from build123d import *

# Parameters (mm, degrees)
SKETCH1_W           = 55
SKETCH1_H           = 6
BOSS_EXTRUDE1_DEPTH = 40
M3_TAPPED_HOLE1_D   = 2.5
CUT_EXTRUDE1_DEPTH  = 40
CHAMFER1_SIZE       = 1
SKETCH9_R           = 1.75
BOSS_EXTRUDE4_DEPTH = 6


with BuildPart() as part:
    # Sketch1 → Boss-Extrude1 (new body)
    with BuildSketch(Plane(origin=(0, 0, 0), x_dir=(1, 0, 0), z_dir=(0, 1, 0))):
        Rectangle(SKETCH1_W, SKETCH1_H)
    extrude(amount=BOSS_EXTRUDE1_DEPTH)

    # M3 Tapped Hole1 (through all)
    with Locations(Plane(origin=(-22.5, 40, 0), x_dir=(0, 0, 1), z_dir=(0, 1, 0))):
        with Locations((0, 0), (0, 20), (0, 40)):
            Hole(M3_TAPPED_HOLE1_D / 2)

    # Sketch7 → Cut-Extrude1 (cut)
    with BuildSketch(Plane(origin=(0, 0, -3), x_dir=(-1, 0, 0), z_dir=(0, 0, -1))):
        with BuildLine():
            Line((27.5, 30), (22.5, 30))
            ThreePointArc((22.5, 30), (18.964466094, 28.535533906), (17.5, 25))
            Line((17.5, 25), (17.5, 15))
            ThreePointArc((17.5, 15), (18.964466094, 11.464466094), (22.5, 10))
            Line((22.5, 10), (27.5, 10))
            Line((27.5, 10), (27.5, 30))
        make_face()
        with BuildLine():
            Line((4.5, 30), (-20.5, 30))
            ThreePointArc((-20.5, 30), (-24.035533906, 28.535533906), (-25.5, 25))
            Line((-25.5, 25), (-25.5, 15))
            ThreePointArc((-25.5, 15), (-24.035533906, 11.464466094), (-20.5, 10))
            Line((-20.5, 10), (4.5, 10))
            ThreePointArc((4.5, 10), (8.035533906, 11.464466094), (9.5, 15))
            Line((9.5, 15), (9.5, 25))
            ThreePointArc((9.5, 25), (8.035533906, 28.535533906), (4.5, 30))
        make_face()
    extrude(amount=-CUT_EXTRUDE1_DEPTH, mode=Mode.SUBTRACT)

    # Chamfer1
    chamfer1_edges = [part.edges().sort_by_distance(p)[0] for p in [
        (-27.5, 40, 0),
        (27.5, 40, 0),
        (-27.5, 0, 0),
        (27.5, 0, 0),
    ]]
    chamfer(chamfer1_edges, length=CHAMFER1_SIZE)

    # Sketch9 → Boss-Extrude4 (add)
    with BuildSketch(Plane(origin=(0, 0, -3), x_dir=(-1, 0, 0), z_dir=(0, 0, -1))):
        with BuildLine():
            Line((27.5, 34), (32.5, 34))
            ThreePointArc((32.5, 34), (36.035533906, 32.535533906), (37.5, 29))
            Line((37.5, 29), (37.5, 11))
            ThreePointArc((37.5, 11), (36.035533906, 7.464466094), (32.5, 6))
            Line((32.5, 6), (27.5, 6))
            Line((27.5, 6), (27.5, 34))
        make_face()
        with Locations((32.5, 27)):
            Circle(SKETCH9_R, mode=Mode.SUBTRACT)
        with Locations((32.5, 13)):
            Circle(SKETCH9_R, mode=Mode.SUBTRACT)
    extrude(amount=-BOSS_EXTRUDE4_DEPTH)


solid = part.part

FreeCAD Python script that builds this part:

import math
import FreeCAD as App
import Part
import Sketcher
from FreeCAD import Vector


def edges_at(feature, points):
    """Names of the edges that pass closest to the given points."""
    edges = feature.Shape.Edges
    near = lambda p: min(range(len(edges)), key=lambda i: edges[i].distToShape(Part.Vertex(*p))[0])
    return sorted({f"Edge{near(p) + 1}" for p in points})

doc = App.newDocument("Part")
body = doc.addObject("PartDesign::Body", "Body")

# Sketch on XZ plane
sketch1 = body.newObject("Sketcher::SketchObject", "Sketch")
sketch1.AttachmentSupport = (doc.getObject("XZ_Plane"), [""])
sketch1.MapMode = "FlatFace"
sketch1.addGeometry([
    Part.LineSegment(Vector(-28, -3, 0), Vector(-28, 3, 0)),
    Part.LineSegment(Vector(-28, 3, 0), Vector(28, 3, 0)),
    Part.LineSegment(Vector(28, 3, 0), Vector(28, -3, 0)),
    Part.LineSegment(Vector(28, -3, 0), Vector(-28, -3, 0)),
], False)
sketch1.addConstraint([
    Sketcher.Constraint("Coincident", 0, 2, 1, 1),
    Sketcher.Constraint("Coincident", 1, 2, 2, 1),
    Sketcher.Constraint("Coincident", 2, 2, 3, 1),
    Sketcher.Constraint("Coincident", 3, 2, 0, 1),
    Sketcher.Constraint("Vertical", 0),
    Sketcher.Constraint("Horizontal", 1),
    Sketcher.Constraint("Vertical", 2),
    Sketcher.Constraint("Horizontal", 3),
    Sketcher.Constraint("Symmetric", 0, 2, 2, 2, -1, 1),
    Sketcher.Constraint("DistanceX", 1, 1, 1, 2, 55.0),
    Sketcher.Constraint("DistanceY", 0, 1, 0, 2, 6.0),
])
pad1 = body.newObject("PartDesign::Pad", "Pad")
pad1.Profile = sketch1
pad1.Length = 40
pad1.Reversed = True

# Sketch on XZ plane
sketch2 = body.newObject("Sketcher::SketchObject", "Sketch001")
sketch2.AttachmentSupport = (doc.getObject("XZ_Plane"), [""])
sketch2.MapMode = "FlatFace"
sketch2.AttachmentOffset = App.Placement(Vector(0, 0, -40), App.Rotation())
sketch2.addGeometry([
    Part.Circle(Vector(-22.5, 0, 0), Vector(0, 0, 1), 1.2),
    Part.Circle(Vector(-2.5, 0, 0), Vector(0, 0, 1), 1.2),
    Part.Circle(Vector(17.5, 0, 0), Vector(0, 0, 1), 1.2),
], False)
sketch2.addConstraint([
    Sketcher.Constraint("Equal", 0, 1),
    Sketcher.Constraint("Equal", 1, 2),
    Sketcher.Constraint("PointOnObject", 0, 3, -1),
    Sketcher.Constraint("PointOnObject", 1, 3, -1),
    Sketcher.Constraint("PointOnObject", 2, 3, -1),
    Sketcher.Constraint("Diameter", 0, 2.5),
    Sketcher.Constraint("DistanceX", 0, 3, 1, 3, 20.0),
    Sketcher.Constraint("DistanceX", 1, 3, 2, 3, 20.0),
    Sketcher.Constraint("DistanceX", 0, 3, -1, 1, 22.5),
])
doc.recompute()
hole = body.newObject("PartDesign::Hole", "Hole")
hole.Profile = sketch2
hole.ThreadType = "None"
hole.Diameter = 2.5
hole.DepthType = "ThroughAll"
hole.Reversed = True

# Sketch on XY plane
sketch3 = body.newObject("Sketcher::SketchObject", "Sketch002")
sketch3.AttachmentSupport = (doc.getObject("XY_Plane"), [""])
sketch3.MapMode = "FlatFace"
sketch3.AttachmentOffset = App.Placement(Vector(0, 0, -3), App.Rotation())
sketch3.addGeometry([
    Part.LineSegment(Vector(-28, 30, 0), Vector(-22, 30, 0)),  # 0
    Part.ArcOfCircle(Part.Circle(Vector(-22, 25, 0), Vector(0, 0, 1), 5), math.radians(0), math.radians(90)),  # 1
    Part.LineSegment(Vector(-18, 25, 0), Vector(-18, 15, 0)),  # 2
    Part.ArcOfCircle(Part.Circle(Vector(-22, 15, 0), Vector(0, 0, 1), 5), math.radians(-90), math.radians(0)),  # 3
    Part.LineSegment(Vector(-22, 10, 0), Vector(-28, 10, 0)),  # 4
    Part.LineSegment(Vector(-28, 10, 0), Vector(-28, 30, 0)),  # 5
    Part.LineSegment(Vector(-4, 30, 0), Vector(20, 30, 0)),  # 6
    Part.ArcOfCircle(Part.Circle(Vector(20, 25, 0), Vector(0, 0, 1), 5), math.radians(0), math.radians(90)),  # 7
    Part.LineSegment(Vector(26, 25, 0), Vector(26, 15, 0)),  # 8
    Part.ArcOfCircle(Part.Circle(Vector(20, 15, 0), Vector(0, 0, 1), 5), math.radians(-90), math.radians(0)),  # 9
    Part.LineSegment(Vector(20, 10, 0), Vector(-4, 10, 0)),  # 10
    Part.ArcOfCircle(Part.Circle(Vector(-4, 15, 0), Vector(0, 0, 1), 5), math.radians(180), math.radians(270)),  # 11
    Part.LineSegment(Vector(-10, 15, 0), Vector(-10, 25, 0)),  # 12
    Part.ArcOfCircle(Part.Circle(Vector(-4, 25, 0), Vector(0, 0, 1), 5), math.radians(90), math.radians(180)),  # 13
], False)
sketch3.addConstraint([
    Sketcher.Constraint("Tangent", 0, 2, 1, 2),
    Sketcher.Constraint("Tangent", 1, 1, 2, 1),
    Sketcher.Constraint("Tangent", 2, 2, 3, 2),
    Sketcher.Constraint("Tangent", 3, 1, 4, 1),
    Sketcher.Constraint("Coincident", 4, 2, 5, 1),
    Sketcher.Constraint("Coincident", 5, 2, 0, 1),
    Sketcher.Constraint("Tangent", 6, 2, 7, 2),
    Sketcher.Constraint("Tangent", 7, 1, 8, 1),
    Sketcher.Constraint("Tangent", 8, 2, 9, 2),
    Sketcher.Constraint("Tangent", 9, 1, 10, 1),
    Sketcher.Constraint("Tangent", 10, 2, 11, 2),
    Sketcher.Constraint("Tangent", 11, 1, 12, 1),
    Sketcher.Constraint("Tangent", 12, 2, 13, 2),
    Sketcher.Constraint("Tangent", 13, 1, 6, 1),
    Sketcher.Constraint("Horizontal", 0),
    Sketcher.Constraint("Vertical", 2),
    Sketcher.Constraint("Horizontal", 4),
    Sketcher.Constraint("Vertical", 5),
    Sketcher.Constraint("Horizontal", 6),
    Sketcher.Constraint("Vertical", 8),
    Sketcher.Constraint("Horizontal", 10),
    Sketcher.Constraint("Vertical", 12),
    Sketcher.Constraint("Equal", 1, 3),
    Sketcher.Constraint("Equal", 3, 7),
    Sketcher.Constraint("Equal", 7, 9),
    Sketcher.Constraint("Equal", 9, 11),
    Sketcher.Constraint("Equal", 11, 13),
    Sketcher.Constraint("Horizontal", 1, 3, 7, 3),
    Sketcher.Constraint("Horizontal", 3, 3, 9, 3),
    Sketcher.Constraint("Radius", 1, 5.0),
    Sketcher.Constraint("DistanceX", 0, 1, 0, 2, 5.0),
    Sketcher.Constraint("DistanceX", 6, 1, 6, 2, 25.0),
    Sketcher.Constraint("DistanceY", 2, 2, 2, 1, 10.0),
    Sketcher.Constraint("DistanceY", -1, 1, 1, 3, 25.0),
    Sketcher.Constraint("DistanceX", 1, 3, 7, 3, 43.0),
    Sketcher.Constraint("DistanceX", 1, 3, -1, 1, 22.5),
])
pocket1 = body.newObject("PartDesign::Pocket", "Pocket")
pocket1.Profile = sketch3
pocket1.Length = 40
pocket1.Reversed = True
doc.recompute()

chamfer = body.newObject("PartDesign::Chamfer", "Chamfer")
chamfer.Base = (pocket1, edges_at(pocket1, [
    (-27.5, 40, 0),
    (27.5, 40, 0),
    (-27.5, 0, 0),
    (27.5, 0, 0),
]))
chamfer.Size = 1

# Sketch on XY plane
sketch4 = body.newObject("Sketcher::SketchObject", "Sketch003")
sketch4.AttachmentSupport = (doc.getObject("XY_Plane"), [""])
sketch4.MapMode = "FlatFace"
sketch4.AttachmentOffset = App.Placement(Vector(0, 0, -3), App.Rotation())
sketch4.addGeometry([
    Part.LineSegment(Vector(-32.5, 34, 0), Vector(-27.5, 34, 0)),  # 0
    Part.LineSegment(Vector(-27.5, 34, 0), Vector(-27.5, 6, 0)),  # 1
    Part.LineSegment(Vector(-27.5, 6, 0), Vector(-32.5, 6, 0)),  # 2
    Part.ArcOfCircle(Part.Circle(Vector(-32.5, 11, 0), Vector(0, 0, 1), 5), math.radians(180), math.radians(270)),  # 3
    Part.LineSegment(Vector(-37.5, 11, 0), Vector(-37.5, 29, 0)),  # 4
    Part.ArcOfCircle(Part.Circle(Vector(-32.5, 29, 0), Vector(0, 0, 1), 5), math.radians(90), math.radians(180)),  # 5
    Part.Circle(Vector(-32.5, 13, 0), Vector(0, 0, 1), 1.8),  # 6
    Part.Circle(Vector(-32.5, 27, 0), Vector(0, 0, 1), 1.8),  # 7
], False)
sketch4.addConstraint([
    Sketcher.Constraint("Coincident", 0, 2, 1, 1),
    Sketcher.Constraint("Coincident", 1, 2, 2, 1),
    Sketcher.Constraint("Tangent", 2, 2, 3, 2),
    Sketcher.Constraint("Tangent", 3, 1, 4, 1),
    Sketcher.Constraint("Tangent", 4, 2, 5, 2),
    Sketcher.Constraint("Tangent", 5, 1, 0, 1),
    Sketcher.Constraint("Horizontal", 0),
    Sketcher.Constraint("Vertical", 1),
    Sketcher.Constraint("Horizontal", 2),
    Sketcher.Constraint("Vertical", 4),
    Sketcher.Constraint("Equal", 3, 5),
    Sketcher.Constraint("Equal", 6, 7),
    Sketcher.Constraint("Vertical", 5, 3, 6, 3),
    Sketcher.Constraint("Vertical", 6, 3, 7, 3),
    Sketcher.Constraint("Radius", 3, 5.0),
    Sketcher.Constraint("Diameter", 6, 3.5),
    Sketcher.Constraint("DistanceX", 0, 1, 0, 2, 5.0),
    Sketcher.Constraint("DistanceY", 1, 2, 1, 1, 28.0),
    Sketcher.Constraint("DistanceY", -1, 1, 3, 3, 11.0),
    Sketcher.Constraint("DistanceY", -1, 1, 6, 3, 13.0),
    Sketcher.Constraint("DistanceY", -1, 1, 7, 3, 27.0),
    Sketcher.Constraint("DistanceX", 3, 3, -1, 1, 32.5),
])
pad2 = body.newObject("PartDesign::Pad", "Pad001")
pad2.Profile = sketch4
pad2.Length = 6

doc.recompute()
